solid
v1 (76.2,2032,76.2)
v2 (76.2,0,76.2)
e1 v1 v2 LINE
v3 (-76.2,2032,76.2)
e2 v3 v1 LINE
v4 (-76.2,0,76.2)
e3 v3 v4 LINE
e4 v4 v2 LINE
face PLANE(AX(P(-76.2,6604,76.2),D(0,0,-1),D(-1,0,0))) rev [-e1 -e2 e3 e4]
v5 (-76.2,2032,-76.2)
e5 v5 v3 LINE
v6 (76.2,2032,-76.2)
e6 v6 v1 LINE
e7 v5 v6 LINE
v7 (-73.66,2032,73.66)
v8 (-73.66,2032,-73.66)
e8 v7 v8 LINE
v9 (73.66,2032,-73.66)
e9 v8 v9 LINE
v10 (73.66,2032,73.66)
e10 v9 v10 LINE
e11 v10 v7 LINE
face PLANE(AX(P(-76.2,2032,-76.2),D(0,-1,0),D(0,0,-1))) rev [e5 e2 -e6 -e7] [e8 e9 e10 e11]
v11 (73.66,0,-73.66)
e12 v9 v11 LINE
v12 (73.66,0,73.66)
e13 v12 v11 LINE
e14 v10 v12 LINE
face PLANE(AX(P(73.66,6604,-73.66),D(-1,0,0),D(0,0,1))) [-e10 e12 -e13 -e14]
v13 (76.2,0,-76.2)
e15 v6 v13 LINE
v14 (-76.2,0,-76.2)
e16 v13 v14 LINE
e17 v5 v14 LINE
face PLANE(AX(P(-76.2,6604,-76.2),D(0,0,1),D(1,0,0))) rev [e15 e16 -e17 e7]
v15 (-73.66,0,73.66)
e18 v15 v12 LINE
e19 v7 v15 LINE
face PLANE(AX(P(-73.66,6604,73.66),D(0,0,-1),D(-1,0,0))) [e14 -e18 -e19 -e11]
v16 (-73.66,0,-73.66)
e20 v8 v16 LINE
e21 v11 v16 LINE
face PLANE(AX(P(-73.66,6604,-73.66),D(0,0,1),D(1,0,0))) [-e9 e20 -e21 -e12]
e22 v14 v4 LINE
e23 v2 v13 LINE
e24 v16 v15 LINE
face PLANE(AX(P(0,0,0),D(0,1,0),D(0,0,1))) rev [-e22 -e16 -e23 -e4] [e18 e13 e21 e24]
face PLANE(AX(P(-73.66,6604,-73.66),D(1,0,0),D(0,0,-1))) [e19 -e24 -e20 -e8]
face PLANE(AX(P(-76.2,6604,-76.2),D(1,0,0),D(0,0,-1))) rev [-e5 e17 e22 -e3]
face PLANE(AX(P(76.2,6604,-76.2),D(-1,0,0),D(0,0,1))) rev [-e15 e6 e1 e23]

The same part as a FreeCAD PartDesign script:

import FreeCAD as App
import Part
import Sketcher
from FreeCAD import Vector
Q = App.Units.Quantity

doc = App.newDocument("Part")
body = doc.addObject("PartDesign::Body", "Body")

# Sketch on XZ plane
sketch1 = body.newObject("Sketcher::SketchObject", "Sketch")
sketch1.AttachmentSupport = (doc.getObject("XZ_Plane"), [""])
sketch1.MapMode = "FlatFace"
sketch1.addGeometry([
    Part.LineSegment(Vector(-76.2, -76.2, 0), Vector(-76.2, 76.2, 0)),  # 0
    Part.LineSegment(Vector(-76.2, 76.2, 0), Vector(76.2, 76.2, 0)),  # 1
    Part.LineSegment(Vector(76.2, 76.2, 0), Vector(76.2, -76.2, 0)),  # 2
    Part.LineSegment(Vector(76.2, -76.2, 0), Vector(-76.2, -76.2, 0)),  # 3
    Part.LineSegment(Vector(73.66, 73.66, 0), Vector(-73.66, 73.66, 0)),  # 4
    Part.LineSegment(Vector(-73.66, 73.66, 0), Vector(-73.66, -73.66, 0)),  # 5
    Part.LineSegment(Vector(-73.66, -73.66, 0), Vector(73.66, -73.66, 0)),  # 6
    Part.LineSegment(Vector(73.66, -73.66, 0), Vector(73.66, 73.66, 0)),  # 7
], False)
sketch1.addConstraint([
    Sketcher.Constraint("Coincident", 0, 2, 1, 1),
    Sketcher.Constraint("Coincident", 1, 2, 2, 1),
    Sketcher.Constraint("Coincident", 2, 2, 3, 1),
    Sketcher.Constraint("Coincident", 3, 2, 0, 1),
    Sketcher.Constraint("Coincident", 4, 2, 5, 1),
    Sketcher.Constraint("Coincident", 5, 2, 6, 1),
    Sketcher.Constraint("Coincident", 6, 2, 7, 1),
    Sketcher.Constraint("Coincident", 7, 2, 4, 1),
    Sketcher.Constraint("Vertical", 0),
    Sketcher.Constraint("Horizontal", 1),
    Sketcher.Constraint("Vertical", 2),
    Sketcher.Constraint("Horizontal", 3),
    Sketcher.Constraint("Horizontal", 4),
    Sketcher.Constraint("Vertical", 5),
    Sketcher.Constraint("Horizontal", 6),
    Sketcher.Constraint("Vertical", 7),
    Sketcher.Constraint("Symmetric", 0, 2, 2, 2, -1, 1),
    Sketcher.Constraint("Symmetric", 4, 2, 6, 2, -1, 1),
    Sketcher.Constraint("Equal", 3, 0),
    Sketcher.Constraint("Equal", 6, 5),
    Sketcher.Constraint("DistanceX", 1, 1, 1, 2, Q("6 in")),
    Sketcher.Constraint("DistanceX", 4, 2, 4, 1, Q("5.8 in")),
])
pad1 = body.newObject("PartDesign::Pad", "Pad")
pad1.Profile = sketch1
pad1.Length = Q("260 in")
pad1.Reversed = True

# Sketch on XY plane
sketch2 = body.newObject("Sketcher::SketchObject", "Sketch001")
sketch2.AttachmentSupport = (doc.getObject("XY_Plane"), [""])
sketch2.MapMode = "FlatFace"
sketch2.AttachmentOffset = App.Placement(Vector(0, 0, 3 * 25.4), App.Rotation())
sketch2.addGeometry([
    Part.LineSegment(Vector(-76.2, 6604, 0), Vector(-76.2, 2032, 0)),
    Part.LineSegment(Vector(-76.2, 2032, 0), Vector(76.2, 2032, 0)),
    Part.LineSegment(Vector(76.2, 2032, 0), Vector(76.2, 6604, 0)),
    Part.LineSegment(Vector(76.2, 6604, 0), Vector(-76.2, 6604, 0)),
], False)
sketch2.addConstraint([
    Sketcher.Constraint("Coincident", 0, 2, 1, 1),
    Sketcher.Constraint("Coincident", 1, 2, 2, 1),
    Sketcher.Constraint("Coincident", 2, 2, 3, 1),
    Sketcher.Constraint("Coincident", 3, 2, 0, 1),
    Sketcher.Constraint("Vertical", 0),
    Sketcher.Constraint("Horizontal", 1),
    Sketcher.Constraint("Vertical", 2),
    Sketcher.Constraint("Horizontal", 3),
    Sketcher.Constraint("DistanceX", 1, 1, 1, 2, Q("6 in")),
    Sketcher.Constraint("DistanceY", 0, 2, 0, 1, Q("180 in")),
    Sketcher.Constraint("DistanceX", 0, 2, -1, 1, Q("3 in")),
    Sketcher.Constraint("DistanceY", -1, 1, 0, 2, Q("80 in")),
])
pocket1 = body.newObject("PartDesign::Pocket", "Pocket")
pocket1.Profile = sketch2
pocket1.Type = "ThroughAll"

doc.recompute()
